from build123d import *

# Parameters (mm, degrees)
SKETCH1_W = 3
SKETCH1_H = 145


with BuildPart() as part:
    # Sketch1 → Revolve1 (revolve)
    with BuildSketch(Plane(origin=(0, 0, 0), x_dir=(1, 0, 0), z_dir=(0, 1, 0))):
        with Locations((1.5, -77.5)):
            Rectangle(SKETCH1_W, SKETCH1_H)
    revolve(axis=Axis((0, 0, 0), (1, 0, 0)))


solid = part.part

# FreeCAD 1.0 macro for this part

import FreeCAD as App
import Part
import Sketcher
from FreeCAD import Vector


def add_polygon(sketch, points):
    """Adds a closed chain of lines whose ends are joined by coincident constraints."""
    first, n = sketch.GeometryCount, len(points)
    for a, b in zip(points, points[1:] + points[:1]):
        sketch.addGeometry(Part.LineSegment(App.Vector(*a, 0), App.Vector(*b, 0)), False)
    for i in range(n):
        sketch.addConstraint(Sketcher.Constraint("Coincident", first + i, 2, first + (i + 1) % n, 1))

doc = App.newDocument("Part")
body = doc.addObject("PartDesign::Body", "Body")

# Sketch on XZ plane
sketch1 = body.newObject("Sketcher::SketchObject", "Sketch")
sketch1.AttachmentSupport = (doc.getObject("XZ_Plane"), [""])
sketch1.MapMode = "FlatFace"
add_polygon(sketch1, [(0, 5), (0, 150), (3, 150), (3, 5)])  # lines 0-3
sketch1.addConstraint([
    Sketcher.Constraint("Vertical", 0),
    Sketcher.Constraint("Horizontal", 1),
    Sketcher.Constraint("Vertical", 2),
    Sketcher.Constraint("Horizontal", 3),
    Sketcher.Constraint("PointOnObject", 0, 2, -2),
    Sketcher.Constraint("DistanceX", 1, 1, 1, 2, 3.0),
    Sketcher.Constraint("DistanceY", 0, 1, 0, 2, 145.0),
    Sketcher.Constraint("DistanceY", -1, 1, 0, 2, 150.0),
])
revolution = body.newObject("PartDesign::Revolution", "Revolution")
revolution.Profile = sketch1
revolution.ReferenceAxis = (sketch1, ["H_Axis"])
revolution.Angle = 360

doc.recompute()
